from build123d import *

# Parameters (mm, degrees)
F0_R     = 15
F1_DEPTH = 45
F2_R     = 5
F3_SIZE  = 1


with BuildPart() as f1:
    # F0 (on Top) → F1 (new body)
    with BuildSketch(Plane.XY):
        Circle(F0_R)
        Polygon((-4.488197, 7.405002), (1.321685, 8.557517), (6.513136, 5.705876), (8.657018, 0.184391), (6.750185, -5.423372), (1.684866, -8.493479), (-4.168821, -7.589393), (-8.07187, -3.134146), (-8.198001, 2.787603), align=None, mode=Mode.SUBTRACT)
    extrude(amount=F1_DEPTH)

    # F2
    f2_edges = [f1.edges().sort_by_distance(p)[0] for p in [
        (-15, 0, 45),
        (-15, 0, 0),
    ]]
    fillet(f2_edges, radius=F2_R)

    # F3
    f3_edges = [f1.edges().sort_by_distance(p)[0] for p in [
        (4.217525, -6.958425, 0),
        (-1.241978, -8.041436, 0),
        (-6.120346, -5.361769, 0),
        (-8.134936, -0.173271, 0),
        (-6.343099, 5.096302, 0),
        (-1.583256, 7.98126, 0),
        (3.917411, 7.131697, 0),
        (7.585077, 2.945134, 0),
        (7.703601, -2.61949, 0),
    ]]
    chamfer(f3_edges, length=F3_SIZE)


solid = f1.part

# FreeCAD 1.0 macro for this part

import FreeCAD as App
import Part
import Sketcher


def edges_at(feature, points):
    """Names of the edges that pass closest to the given points."""
    edges = feature.Shape.Edges
    near = lambda p: min(range(len(edges)), key=lambda i: edges[i].distToShape(Part.Vertex(*p))[0])
    return sorted({f"Edge{near(p) + 1}" for p in points})


def add_polygon(sketch, points):
    """Adds a closed chain of lines whose ends are joined by coincident constraints."""
    first, n = sketch.GeometryCount, len(points)
    for a, b in zip(points, points[1:] + points[:1]):
        sketch.addGeometry(Part.LineSegment(App.Vector(*a, 0), App.Vector(*b, 0)), False)
    for i in range(n):
        sketch.addConstraint(Sketcher.Constraint("Coincident", first + i, 2, first + (i + 1) % n, 1))

doc = App.newDocument("Part")
params = doc.addObject("Spreadsheet::Sheet", "Params")
for row, (alias, value) in enumerate([
    ("sketch1_diameter", "30 mm"),
    ("pad1_length", "45 mm"),
    ("fillet_radius", "5 mm"),
    ("chamfer_size", "1 mm"),
], start=1):
    params.set(f"A{row}", alias)
    params.set(f"B{row}", "=" + value)
    params.setAlias(f"B{row}", alias)

body = doc.addObject("PartDesign::Body", "Body")

# Sketch on XY plane
sketch1 = doc.addObject("Sketcher::SketchObject", "Sketch")
body.addObject(sketch1)
sketch1.AttachmentSupport = (doc.XY_Plane, [""])
sketch1.MapMode = "FlatFace"
sketch1.addGeometry(Part.Circle(App.Vector(0, 0, 0), App.Vector(0, 0, 1), 15), False)  # 0
add_polygon(sketch1, [(-8, 3), (-4, 7), (1, 9), (7, 6), (9, 0), (7, -5), (2, -8), (-4, -8), (-8, -3)])  # lines 1-9
sketch1.addConstraint([
    Sketcher.Constraint("Coincident", 0, 3, -1, 1),
    Sketcher.Constraint("Equal", 1, 2),
    Sketcher.Constraint("Equal", 2, 3),
    Sketcher.Constraint("Equal", 3, 4),
    Sketcher.Constraint("Equal", 4, 5),
    Sketcher.Constraint("Equal", 5, 6),
    Sketcher.Constraint("Equal", 6, 7),
    Sketcher.Constraint("Equal", 7, 8),
    Sketcher.Constraint("Equal", 8, 9),
    Sketcher.Constraint("Diameter", 0, 30.0),
    Sketcher.Constraint("DistanceY", -1, 1, 1, 2, 7.405002),
    Sketcher.Constraint("DistanceX", 9, 2, -1, 1, 8.198001),
    Sketcher.Constraint("DistanceX", 2, 2, 5, 2, 5.4285),
    Sketcher.Constraint("DistanceY", 9, 2, 1, 2, 4.617399),
    Sketcher.Constraint("Distance", 5, 5.923092),
    Sketcher.Constraint("DistanceX", -1, 1, 4, 2, 8.657018),
    Sketcher.Constraint("DistanceY", -1, 1, 4, 2, 0.184391),
    Sketcher.Constraint("DistanceY", 5, 2, -1, 1, 5.423372),
    Sketcher.Constraint("DistanceY", 6, 2, -1, 1, 8.493479),
    Sketcher.Constraint("DistanceX", 7, 2, -1, 1, 4.168821),
])
sketch1.setExpression("Constraints[18]", "Params.sketch1_diameter")
pad1 = doc.addObject("PartDesign::Pad", "Pad")
body.addObject(pad1)
pad1.Profile = sketch1
pad1.setExpression("Length", "Params.pad1_length")
doc.recompute()

fillet = doc.addObject("PartDesign::Fillet", "Fillet")
body.addObject(fillet)
fillet.Base = (pad1, edges_at(pad1, [(-15, 0, 45), (-15, 0, 0)]))
fillet.setExpression("Radius", "Params.fillet_radius")
doc.recompute()

chamfer = doc.addObject("PartDesign::Chamfer", "Chamfer")
body.addObject(chamfer)
chamfer.Base = (fillet, edges_at(fillet, [
    (4.218, -6.958, 0),
    (-1.242, -8.041, 0),
    (-6.12, -5.362, 0),
    (-8.135, -0.173, 0),
    (-6.343, 5.096, 0),
    (-1.583, 7.981, 0),
    (3.917, 7.132, 0),
    (7.585, 2.945, 0),
    (7.704, -2.619, 0),
]))
chamfer.setExpression("Size", "Params.chamfer_size")

doc.recompute()
